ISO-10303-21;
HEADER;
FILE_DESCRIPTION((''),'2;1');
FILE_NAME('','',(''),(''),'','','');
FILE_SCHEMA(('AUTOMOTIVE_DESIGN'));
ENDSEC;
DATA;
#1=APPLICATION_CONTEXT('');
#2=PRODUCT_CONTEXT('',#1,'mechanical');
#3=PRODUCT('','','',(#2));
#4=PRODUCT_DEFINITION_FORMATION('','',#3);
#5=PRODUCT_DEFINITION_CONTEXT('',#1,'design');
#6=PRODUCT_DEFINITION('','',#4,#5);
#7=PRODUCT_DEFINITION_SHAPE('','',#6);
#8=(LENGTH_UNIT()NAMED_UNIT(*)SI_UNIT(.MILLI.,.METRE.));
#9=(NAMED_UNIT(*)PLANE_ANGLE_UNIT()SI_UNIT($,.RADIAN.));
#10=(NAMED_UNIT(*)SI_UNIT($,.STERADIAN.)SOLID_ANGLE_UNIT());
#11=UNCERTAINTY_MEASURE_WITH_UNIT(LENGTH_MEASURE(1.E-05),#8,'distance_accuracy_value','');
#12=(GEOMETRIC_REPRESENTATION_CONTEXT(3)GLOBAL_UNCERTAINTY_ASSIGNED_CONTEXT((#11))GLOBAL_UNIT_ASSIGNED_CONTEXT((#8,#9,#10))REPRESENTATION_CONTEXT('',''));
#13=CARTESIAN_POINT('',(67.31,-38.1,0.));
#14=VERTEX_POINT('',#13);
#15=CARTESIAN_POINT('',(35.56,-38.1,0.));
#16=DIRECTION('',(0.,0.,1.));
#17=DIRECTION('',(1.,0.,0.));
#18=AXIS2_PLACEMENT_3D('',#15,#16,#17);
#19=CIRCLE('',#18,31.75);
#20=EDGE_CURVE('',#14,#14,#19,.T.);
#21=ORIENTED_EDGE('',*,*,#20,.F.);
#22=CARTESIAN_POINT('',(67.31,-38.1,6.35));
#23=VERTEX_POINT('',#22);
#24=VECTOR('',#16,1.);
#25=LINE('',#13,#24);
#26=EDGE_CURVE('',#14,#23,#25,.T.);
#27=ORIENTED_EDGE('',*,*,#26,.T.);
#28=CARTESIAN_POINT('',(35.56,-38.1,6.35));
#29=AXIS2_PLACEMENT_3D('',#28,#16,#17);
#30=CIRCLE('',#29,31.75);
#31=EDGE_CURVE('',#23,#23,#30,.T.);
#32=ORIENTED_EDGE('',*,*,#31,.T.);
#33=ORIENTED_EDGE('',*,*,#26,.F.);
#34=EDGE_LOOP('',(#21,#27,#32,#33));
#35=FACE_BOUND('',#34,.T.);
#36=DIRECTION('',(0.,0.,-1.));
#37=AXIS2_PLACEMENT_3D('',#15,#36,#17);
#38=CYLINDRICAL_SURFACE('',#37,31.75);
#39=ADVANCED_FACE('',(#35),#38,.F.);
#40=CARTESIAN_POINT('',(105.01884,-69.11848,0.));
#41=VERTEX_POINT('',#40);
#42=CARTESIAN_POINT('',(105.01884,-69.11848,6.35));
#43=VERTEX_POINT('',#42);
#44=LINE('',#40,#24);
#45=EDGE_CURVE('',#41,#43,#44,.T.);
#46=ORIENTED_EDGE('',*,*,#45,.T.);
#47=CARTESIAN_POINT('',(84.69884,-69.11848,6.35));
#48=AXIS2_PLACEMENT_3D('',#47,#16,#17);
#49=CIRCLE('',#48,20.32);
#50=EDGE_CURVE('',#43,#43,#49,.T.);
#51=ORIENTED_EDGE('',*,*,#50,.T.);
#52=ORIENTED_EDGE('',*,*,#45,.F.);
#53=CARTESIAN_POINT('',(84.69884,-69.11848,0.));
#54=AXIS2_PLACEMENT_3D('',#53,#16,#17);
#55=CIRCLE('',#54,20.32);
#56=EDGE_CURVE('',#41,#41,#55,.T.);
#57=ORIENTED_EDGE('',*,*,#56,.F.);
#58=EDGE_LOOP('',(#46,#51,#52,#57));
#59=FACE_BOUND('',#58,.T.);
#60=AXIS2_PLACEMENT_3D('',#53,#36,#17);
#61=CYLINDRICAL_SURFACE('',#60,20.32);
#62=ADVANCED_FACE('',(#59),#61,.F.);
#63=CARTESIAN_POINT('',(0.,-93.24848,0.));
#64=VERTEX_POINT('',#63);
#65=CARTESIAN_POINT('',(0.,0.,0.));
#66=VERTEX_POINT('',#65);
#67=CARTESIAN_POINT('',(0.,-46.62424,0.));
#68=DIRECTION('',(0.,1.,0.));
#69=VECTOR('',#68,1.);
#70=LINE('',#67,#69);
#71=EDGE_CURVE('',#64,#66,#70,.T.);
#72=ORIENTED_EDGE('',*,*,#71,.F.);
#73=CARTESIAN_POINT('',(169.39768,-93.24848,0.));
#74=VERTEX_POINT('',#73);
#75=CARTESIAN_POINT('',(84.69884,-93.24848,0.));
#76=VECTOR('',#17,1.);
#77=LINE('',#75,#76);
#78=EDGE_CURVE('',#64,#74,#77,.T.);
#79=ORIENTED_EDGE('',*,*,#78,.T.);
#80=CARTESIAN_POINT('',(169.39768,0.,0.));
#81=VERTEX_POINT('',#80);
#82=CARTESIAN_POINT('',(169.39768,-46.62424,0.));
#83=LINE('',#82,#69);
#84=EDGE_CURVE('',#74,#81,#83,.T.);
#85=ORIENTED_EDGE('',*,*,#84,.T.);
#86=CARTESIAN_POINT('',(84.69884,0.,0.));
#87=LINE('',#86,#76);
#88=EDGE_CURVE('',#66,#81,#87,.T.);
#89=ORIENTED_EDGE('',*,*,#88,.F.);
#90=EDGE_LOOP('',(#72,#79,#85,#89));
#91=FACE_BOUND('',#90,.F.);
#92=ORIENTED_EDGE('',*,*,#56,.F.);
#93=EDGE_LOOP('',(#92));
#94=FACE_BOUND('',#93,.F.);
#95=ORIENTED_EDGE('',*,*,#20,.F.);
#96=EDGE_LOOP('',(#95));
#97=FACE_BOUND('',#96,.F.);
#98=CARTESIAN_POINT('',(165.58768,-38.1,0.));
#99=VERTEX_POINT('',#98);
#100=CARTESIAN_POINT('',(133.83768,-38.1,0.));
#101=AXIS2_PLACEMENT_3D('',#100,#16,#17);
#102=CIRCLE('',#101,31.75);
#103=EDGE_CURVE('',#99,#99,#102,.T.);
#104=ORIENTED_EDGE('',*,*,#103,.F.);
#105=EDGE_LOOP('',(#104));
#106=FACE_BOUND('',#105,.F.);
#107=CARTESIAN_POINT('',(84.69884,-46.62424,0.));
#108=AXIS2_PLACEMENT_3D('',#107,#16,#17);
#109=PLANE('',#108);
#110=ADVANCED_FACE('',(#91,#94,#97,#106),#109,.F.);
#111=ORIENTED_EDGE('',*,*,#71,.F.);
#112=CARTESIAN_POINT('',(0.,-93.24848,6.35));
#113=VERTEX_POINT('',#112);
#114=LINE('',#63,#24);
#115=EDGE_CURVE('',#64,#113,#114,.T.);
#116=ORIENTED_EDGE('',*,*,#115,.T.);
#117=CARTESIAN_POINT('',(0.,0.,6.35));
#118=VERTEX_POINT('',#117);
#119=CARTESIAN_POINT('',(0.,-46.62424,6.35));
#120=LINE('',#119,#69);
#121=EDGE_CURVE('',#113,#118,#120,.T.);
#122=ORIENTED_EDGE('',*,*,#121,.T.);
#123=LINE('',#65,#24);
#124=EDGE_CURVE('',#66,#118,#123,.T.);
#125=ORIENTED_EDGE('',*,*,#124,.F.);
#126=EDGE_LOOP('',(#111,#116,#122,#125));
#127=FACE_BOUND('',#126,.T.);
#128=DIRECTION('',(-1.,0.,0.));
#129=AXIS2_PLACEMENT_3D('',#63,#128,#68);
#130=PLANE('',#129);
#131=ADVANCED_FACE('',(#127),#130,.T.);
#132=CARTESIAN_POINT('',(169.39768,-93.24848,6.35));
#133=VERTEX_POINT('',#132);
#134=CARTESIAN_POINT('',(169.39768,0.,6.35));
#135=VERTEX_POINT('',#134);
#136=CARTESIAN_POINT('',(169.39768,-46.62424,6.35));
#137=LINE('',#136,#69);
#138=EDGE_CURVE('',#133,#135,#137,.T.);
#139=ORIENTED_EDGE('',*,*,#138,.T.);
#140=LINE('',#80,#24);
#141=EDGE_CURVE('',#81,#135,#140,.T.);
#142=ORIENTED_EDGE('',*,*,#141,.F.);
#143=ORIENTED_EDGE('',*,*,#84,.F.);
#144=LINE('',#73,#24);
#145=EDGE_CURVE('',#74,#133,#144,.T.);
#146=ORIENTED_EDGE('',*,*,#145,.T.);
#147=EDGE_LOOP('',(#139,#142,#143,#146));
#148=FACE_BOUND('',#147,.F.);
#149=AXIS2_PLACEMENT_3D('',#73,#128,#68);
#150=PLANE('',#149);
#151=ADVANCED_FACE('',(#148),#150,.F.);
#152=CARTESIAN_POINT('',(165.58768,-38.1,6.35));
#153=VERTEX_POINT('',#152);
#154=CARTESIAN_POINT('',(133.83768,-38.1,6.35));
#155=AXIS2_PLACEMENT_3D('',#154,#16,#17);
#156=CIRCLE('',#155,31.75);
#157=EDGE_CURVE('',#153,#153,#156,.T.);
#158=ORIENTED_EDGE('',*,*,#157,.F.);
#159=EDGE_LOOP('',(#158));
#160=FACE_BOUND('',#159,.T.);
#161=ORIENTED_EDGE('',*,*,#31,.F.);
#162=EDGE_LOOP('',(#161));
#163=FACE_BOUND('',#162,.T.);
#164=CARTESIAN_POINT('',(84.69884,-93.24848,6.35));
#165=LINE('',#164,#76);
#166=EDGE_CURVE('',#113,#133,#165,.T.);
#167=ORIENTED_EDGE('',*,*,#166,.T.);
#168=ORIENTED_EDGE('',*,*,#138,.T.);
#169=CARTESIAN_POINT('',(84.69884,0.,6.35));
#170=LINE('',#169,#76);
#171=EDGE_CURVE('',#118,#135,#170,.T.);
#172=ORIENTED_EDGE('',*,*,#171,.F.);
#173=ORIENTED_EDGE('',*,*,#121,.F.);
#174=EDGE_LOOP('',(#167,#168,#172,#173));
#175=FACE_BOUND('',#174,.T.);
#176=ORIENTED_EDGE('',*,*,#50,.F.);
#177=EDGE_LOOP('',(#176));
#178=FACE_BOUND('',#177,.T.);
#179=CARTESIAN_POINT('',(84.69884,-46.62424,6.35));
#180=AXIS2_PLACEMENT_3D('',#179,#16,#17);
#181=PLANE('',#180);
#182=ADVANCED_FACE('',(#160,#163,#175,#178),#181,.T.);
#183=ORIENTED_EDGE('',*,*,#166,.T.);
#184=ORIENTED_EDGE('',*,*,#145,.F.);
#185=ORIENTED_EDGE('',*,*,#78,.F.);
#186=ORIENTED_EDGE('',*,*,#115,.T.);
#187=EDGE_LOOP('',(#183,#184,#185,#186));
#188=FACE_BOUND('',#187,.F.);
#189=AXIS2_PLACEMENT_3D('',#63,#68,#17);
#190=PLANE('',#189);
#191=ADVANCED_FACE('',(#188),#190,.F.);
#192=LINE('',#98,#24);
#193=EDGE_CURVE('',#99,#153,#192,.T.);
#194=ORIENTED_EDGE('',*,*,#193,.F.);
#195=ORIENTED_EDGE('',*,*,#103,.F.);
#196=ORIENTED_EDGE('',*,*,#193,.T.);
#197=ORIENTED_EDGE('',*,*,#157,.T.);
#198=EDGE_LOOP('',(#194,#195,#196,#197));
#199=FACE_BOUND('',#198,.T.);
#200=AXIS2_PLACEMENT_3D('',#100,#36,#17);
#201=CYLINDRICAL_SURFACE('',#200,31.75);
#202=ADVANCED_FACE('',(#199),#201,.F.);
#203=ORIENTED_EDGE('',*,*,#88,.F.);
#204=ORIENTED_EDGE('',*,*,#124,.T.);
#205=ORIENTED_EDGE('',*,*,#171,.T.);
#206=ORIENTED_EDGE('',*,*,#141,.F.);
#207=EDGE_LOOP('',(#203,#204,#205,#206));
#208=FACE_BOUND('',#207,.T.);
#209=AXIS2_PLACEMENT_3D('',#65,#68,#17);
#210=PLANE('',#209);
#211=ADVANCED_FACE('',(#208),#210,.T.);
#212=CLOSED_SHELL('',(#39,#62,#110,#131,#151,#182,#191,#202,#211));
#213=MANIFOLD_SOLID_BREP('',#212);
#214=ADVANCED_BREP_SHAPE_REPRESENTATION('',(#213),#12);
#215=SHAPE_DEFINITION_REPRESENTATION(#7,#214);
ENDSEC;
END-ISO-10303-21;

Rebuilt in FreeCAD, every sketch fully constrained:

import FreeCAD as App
import Part
import Sketcher
Q = App.Units.Quantity

doc = App.newDocument("Part")
params = doc.addObject("Spreadsheet::Sheet", "Params")
for row, (alias, value) in enumerate([
    ("sketch1_diameter", "1.6 in"),
    ("sketch1_diameter2", "2.5 in"),
    ("pad1_length", "0.25 in"),
], start=1):
    params.set(f"A{row}", alias)
    params.set(f"B{row}", "=" + value)
    params.setAlias(f"B{row}", alias)

body = doc.addObject("PartDesign::Body", "Body")

sketch1 = doc.addObject("Sketcher::SketchObject", "Sketch")
body.addObject(sketch1)
sketch1.AttachmentSupport = (doc.XY_Plane, [""])
sketch1.MapMode = "FlatFace"
sketch1.addGeometry([
    Part.LineSegment(App.Vector(0, 0, 0), App.Vector(0, -93.24848, 0)),
    Part.LineSegment(App.Vector(0, -93.24848, 0), App.Vector(169.39768, -93.24848, 0)),
    Part.LineSegment(App.Vector(169.39768, -93.24848, 0), App.Vector(169.39768, 0, 0)),
    Part.LineSegment(App.Vector(169.39768, 0, 0), App.Vector(0, 0, 0)),
    Part.Circle(App.Vector(84.69884, -69.11848, 0), App.Vector(0, 0, 1), 20.32),
    Part.Circle(App.Vector(35.56, -38.1, 0), App.Vector(0, 0, 1), 31.75),
    Part.Circle(App.Vector(133.83768, -38.1, 0), App.Vector(0, 0, 1), 31.75),
], False)
sketch1.addConstraint([
    Sketcher.Constraint("Coincident", 0, 2, 1, 1),
    Sketcher.Constraint("Coincident", 1, 2, 2, 1),
    Sketcher.Constraint("Coincident", 2, 2, 3, 1),
    Sketcher.Constraint("Coincident", 3, 2, 0, 1),
    Sketcher.Constraint("Vertical", 0),
    Sketcher.Constraint("Horizontal", 1),
    Sketcher.Constraint("Vertical", 2),
    Sketcher.Constraint("Horizontal", 3),
    Sketcher.Constraint("Coincident", 3, 2, -1, 1),
    Sketcher.Constraint("Equal", 5, 6),
    Sketcher.Constraint("Horizontal", 5, 3, 6, 3),
    Sketcher.Constraint("Diameter", 4, Q("1.6 in")),
    Sketcher.Constraint("Diameter", 5, Q("2.5 in")),
    Sketcher.Constraint("DistanceX", -1, 1, 5, 3, Q("1.4 in")),
    Sketcher.Constraint("DistanceY", 5, 3, -1, 1, Q("1.5 in")),
    Sketcher.Constraint("DistanceX", 6, 3, 1, 2, Q("1.4 in")),
    Sketcher.Constraint("DistanceY", 0, 2, 4, 3, Q("0.95 in")),
    Sketcher.Constraint("DistanceX", 1, 1, 1, 2, Q("6.6692 in")),
    Sketcher.Constraint("DistanceY", 0, 2, 0, 1, Q("3.6712 in")),
    Sketcher.Constraint("DistanceX", -1, 1, 4, 3, Q("3.3346 in")),
])
sketch1.setExpression("Constraints[11]", "Params.sketch1_diameter")
sketch1.setExpression("Constraints[12]", "Params.sketch1_diameter2")
pad1 = doc.addObject("PartDesign::Pad", "Pad")
body.addObject(pad1)
pad1.Profile = sketch1
pad1.setExpression("Length", "Params.pad1_length")

doc.recompute()
